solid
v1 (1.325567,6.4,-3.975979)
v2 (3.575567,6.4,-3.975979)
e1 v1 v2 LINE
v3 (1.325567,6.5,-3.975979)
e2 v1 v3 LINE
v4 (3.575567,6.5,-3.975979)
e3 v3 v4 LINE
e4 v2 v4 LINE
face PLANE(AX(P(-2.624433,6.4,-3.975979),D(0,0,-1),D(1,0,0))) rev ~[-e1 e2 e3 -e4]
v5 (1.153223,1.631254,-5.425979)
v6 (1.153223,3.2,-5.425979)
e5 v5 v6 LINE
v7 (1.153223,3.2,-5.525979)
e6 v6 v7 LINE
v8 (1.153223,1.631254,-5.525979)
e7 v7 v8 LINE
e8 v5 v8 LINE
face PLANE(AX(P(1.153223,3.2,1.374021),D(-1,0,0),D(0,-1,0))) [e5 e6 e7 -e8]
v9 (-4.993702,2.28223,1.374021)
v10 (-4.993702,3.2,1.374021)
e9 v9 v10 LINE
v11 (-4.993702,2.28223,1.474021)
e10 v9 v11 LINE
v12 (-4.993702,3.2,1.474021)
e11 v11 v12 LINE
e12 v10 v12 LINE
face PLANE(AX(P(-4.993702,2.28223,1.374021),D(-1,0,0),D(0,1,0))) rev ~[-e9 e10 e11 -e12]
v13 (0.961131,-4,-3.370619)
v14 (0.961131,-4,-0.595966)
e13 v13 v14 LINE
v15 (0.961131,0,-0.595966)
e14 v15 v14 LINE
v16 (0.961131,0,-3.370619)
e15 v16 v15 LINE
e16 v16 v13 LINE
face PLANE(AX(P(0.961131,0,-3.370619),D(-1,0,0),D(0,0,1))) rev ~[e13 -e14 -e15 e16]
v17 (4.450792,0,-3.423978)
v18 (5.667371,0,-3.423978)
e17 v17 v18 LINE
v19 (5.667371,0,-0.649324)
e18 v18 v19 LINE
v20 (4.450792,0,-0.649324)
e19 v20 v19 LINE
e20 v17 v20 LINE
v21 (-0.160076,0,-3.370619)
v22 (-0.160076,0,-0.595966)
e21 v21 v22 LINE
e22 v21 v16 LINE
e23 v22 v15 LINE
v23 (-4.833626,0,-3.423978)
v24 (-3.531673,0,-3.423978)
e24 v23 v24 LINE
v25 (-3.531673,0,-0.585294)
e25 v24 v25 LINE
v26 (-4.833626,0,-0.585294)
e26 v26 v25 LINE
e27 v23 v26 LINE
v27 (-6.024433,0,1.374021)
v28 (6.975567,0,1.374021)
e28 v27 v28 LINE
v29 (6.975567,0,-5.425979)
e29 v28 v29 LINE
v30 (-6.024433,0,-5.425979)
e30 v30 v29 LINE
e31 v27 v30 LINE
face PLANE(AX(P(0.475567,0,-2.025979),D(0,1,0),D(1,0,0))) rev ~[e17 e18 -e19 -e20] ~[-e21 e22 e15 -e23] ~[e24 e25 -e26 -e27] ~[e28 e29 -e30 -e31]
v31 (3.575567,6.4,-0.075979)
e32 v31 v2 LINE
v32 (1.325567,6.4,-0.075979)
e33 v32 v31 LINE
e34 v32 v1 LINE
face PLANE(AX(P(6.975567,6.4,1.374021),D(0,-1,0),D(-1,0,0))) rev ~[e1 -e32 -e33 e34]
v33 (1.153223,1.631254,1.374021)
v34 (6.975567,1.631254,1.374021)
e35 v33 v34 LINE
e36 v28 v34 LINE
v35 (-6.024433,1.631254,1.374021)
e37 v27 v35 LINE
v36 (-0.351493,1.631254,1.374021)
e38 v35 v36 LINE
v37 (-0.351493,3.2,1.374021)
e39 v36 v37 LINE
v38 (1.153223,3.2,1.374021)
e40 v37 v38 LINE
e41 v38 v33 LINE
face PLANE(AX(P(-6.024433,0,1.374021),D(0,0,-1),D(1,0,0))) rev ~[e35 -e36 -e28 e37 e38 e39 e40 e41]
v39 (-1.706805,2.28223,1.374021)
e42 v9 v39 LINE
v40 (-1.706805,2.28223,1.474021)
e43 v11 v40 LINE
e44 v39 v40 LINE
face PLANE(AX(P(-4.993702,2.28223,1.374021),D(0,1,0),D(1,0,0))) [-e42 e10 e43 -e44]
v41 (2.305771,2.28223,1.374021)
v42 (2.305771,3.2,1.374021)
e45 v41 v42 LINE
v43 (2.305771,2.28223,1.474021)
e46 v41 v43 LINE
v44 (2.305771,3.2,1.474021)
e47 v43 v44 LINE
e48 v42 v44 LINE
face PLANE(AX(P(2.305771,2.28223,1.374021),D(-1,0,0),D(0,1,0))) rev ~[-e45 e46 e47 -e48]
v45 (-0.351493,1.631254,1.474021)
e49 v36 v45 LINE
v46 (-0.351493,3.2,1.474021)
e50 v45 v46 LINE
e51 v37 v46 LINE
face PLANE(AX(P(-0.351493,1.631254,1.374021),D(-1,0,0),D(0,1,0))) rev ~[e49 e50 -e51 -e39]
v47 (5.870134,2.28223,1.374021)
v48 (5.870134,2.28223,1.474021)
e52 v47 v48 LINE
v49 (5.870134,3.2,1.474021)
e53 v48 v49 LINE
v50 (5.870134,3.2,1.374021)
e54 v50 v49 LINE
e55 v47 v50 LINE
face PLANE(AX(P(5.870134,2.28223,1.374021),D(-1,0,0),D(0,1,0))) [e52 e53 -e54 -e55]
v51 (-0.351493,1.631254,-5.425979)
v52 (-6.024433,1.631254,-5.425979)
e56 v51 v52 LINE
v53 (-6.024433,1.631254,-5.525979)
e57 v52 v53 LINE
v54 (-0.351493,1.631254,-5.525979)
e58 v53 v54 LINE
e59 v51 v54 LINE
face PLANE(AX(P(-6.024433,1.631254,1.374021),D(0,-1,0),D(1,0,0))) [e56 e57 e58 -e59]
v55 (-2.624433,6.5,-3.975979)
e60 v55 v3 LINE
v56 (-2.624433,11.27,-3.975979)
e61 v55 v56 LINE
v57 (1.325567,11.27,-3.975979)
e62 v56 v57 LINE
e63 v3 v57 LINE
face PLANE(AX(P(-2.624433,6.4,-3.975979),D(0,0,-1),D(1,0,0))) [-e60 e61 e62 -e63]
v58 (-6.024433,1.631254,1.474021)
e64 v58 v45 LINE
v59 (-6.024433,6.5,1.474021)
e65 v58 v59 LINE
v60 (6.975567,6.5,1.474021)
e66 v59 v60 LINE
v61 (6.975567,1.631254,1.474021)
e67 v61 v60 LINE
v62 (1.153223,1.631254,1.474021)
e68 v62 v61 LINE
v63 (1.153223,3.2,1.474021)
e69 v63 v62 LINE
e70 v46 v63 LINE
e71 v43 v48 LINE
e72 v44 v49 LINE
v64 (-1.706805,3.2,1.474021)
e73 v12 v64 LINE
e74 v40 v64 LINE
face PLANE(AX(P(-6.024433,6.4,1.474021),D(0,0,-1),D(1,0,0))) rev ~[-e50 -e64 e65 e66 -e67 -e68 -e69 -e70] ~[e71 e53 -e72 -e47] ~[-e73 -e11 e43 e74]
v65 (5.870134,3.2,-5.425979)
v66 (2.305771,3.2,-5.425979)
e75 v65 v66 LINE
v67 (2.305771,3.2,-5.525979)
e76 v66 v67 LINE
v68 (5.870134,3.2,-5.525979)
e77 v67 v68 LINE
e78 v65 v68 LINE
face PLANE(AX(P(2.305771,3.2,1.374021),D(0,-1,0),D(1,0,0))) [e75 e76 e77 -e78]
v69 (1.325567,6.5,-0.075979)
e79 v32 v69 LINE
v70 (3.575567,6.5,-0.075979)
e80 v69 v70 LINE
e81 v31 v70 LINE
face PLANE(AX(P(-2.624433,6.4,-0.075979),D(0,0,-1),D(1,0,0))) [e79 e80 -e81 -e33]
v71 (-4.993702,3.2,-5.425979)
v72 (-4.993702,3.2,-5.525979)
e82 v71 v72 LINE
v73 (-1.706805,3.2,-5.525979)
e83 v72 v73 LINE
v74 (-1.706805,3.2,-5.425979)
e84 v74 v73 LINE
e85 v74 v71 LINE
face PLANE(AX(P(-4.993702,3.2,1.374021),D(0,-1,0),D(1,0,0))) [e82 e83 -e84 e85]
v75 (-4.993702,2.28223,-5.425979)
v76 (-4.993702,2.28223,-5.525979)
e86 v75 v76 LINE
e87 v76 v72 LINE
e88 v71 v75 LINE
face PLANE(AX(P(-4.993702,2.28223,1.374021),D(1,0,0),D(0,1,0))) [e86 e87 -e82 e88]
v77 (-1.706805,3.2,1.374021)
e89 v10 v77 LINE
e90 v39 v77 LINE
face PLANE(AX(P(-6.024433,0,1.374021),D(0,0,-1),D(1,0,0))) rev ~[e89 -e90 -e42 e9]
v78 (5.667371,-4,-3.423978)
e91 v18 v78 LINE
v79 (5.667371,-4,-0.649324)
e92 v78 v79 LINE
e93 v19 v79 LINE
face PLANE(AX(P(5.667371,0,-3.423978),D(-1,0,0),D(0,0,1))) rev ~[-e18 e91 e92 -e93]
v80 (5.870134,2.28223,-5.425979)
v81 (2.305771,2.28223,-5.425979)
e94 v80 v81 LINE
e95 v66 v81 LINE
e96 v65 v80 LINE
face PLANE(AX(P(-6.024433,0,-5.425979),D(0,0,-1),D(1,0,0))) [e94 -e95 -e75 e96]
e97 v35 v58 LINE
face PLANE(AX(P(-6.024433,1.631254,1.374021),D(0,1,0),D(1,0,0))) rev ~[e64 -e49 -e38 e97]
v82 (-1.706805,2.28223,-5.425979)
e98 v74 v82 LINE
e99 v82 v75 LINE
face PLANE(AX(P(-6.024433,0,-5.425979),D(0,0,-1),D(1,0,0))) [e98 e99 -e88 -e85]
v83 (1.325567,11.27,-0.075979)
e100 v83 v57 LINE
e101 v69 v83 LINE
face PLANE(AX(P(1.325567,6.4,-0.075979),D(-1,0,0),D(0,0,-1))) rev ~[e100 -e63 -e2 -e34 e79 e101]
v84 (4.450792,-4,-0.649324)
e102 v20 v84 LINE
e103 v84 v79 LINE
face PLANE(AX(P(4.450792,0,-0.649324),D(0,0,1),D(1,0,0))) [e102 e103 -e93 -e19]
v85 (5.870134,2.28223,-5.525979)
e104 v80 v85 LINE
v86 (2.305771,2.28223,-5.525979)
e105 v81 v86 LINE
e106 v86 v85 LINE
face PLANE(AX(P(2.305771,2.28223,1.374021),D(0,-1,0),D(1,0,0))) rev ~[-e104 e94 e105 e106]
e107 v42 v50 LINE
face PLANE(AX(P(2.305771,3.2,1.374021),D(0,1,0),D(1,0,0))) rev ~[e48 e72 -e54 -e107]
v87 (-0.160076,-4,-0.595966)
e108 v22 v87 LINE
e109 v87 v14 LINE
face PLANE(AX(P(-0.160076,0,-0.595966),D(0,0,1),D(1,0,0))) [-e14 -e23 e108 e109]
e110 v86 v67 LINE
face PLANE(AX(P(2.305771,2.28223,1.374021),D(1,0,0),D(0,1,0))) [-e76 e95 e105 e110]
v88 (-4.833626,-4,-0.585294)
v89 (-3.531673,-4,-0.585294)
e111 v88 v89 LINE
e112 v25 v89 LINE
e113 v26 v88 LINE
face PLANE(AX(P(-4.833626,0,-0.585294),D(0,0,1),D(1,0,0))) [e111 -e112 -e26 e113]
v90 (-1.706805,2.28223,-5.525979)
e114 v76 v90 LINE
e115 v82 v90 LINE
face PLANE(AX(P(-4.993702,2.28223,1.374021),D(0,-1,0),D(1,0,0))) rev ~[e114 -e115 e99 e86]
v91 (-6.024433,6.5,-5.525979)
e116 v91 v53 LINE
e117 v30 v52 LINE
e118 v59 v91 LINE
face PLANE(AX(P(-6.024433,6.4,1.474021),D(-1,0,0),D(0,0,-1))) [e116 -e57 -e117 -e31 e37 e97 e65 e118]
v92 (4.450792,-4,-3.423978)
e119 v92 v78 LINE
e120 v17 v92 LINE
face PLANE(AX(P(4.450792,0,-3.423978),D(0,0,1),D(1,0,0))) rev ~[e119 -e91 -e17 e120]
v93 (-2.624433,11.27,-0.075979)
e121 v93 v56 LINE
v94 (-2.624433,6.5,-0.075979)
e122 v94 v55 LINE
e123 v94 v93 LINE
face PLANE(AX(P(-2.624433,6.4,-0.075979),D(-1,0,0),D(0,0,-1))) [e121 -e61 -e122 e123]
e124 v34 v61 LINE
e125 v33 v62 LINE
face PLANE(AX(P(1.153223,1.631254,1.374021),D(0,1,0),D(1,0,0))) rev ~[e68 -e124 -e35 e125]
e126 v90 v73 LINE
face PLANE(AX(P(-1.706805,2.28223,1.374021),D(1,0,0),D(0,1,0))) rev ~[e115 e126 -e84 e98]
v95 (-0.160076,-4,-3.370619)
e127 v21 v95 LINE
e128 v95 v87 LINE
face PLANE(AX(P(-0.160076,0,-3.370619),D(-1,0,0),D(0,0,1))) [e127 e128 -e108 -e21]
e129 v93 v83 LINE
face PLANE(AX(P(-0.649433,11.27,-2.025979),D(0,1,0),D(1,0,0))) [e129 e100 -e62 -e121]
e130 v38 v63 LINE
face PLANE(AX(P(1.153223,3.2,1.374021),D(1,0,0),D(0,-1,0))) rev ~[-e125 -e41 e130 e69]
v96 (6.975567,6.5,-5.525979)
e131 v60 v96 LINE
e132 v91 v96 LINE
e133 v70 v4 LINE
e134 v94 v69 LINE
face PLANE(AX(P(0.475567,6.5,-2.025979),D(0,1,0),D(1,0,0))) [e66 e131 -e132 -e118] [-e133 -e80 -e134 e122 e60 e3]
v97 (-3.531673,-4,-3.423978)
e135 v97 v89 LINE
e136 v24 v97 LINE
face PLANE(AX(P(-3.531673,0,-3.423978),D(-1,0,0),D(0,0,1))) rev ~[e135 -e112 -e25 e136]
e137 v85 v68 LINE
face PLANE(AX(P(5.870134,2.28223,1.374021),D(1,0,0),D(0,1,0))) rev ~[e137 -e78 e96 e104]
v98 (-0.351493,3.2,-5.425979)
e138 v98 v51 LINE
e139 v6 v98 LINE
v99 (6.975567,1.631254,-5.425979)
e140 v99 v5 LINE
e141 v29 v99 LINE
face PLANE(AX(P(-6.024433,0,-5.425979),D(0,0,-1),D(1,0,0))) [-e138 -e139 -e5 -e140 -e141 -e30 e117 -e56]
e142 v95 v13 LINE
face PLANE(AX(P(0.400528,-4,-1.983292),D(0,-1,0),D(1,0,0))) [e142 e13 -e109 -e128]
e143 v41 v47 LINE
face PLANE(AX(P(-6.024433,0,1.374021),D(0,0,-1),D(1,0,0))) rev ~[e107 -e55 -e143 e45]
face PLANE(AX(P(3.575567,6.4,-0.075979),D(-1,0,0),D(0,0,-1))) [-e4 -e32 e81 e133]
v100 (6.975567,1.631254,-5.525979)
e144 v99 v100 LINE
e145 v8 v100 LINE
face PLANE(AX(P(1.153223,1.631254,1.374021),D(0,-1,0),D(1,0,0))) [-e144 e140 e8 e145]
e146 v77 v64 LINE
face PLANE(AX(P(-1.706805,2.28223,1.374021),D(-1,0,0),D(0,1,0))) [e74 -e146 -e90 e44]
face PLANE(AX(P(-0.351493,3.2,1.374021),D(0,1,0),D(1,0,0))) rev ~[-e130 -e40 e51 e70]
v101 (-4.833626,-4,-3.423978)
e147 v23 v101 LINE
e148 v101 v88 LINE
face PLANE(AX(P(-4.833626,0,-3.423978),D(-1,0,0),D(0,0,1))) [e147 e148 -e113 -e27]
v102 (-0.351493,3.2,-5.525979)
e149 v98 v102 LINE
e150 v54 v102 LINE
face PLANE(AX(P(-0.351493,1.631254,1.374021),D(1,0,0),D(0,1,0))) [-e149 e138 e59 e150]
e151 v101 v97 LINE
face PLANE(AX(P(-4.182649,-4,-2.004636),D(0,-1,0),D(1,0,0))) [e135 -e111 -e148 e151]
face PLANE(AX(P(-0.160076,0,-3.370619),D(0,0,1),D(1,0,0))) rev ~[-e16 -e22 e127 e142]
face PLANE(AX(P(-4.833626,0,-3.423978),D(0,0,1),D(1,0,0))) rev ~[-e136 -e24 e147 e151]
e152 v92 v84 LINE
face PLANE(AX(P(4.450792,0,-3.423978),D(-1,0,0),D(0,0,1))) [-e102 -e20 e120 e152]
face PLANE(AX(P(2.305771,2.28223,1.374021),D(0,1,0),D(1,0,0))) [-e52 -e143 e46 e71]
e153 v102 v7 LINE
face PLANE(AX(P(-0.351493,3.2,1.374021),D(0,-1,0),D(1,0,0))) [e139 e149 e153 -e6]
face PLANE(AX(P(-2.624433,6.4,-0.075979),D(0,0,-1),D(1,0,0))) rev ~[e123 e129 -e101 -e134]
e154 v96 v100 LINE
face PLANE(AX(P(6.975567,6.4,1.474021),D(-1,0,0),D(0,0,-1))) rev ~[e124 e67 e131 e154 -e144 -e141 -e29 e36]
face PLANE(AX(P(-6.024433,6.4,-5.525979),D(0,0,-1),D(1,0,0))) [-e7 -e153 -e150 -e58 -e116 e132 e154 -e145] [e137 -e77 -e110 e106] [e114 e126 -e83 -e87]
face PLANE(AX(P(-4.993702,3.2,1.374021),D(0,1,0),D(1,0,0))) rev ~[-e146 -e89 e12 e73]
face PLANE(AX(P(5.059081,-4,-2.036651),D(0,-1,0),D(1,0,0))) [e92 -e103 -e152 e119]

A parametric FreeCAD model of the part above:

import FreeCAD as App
import Part
import Sketcher

V = App.Vector


def add_polygon(sketch, points):
    """Adds a closed chain of lines whose ends are joined by coincident constraints."""
    first, n = sketch.GeometryCount, len(points)
    for a, b in zip(points, points[1:] + points[:1]):
        sketch.addGeometry(Part.LineSegment(App.Vector(*a, 0), App.Vector(*b, 0)), False)
    for i in range(n):
        sketch.addConstraint(Sketcher.Constraint("Coincident", first + i, 2, first + (i + 1) % n, 1))

doc = App.newDocument("Part")
params = doc.addObject("Spreadsheet::Sheet", "Params")
for row, (alias, value) in enumerate([
    ("sketch1_width", "13 mm"),
    ("sketch1_height", "6.8 mm"),
    ("pad1_length", "6.4 mm"),
    ("sketch2_width", "13 mm"),
    ("pad2_length", "0.1 mm"),
    ("pad2_length2", "6.9 mm"),
    ("sketch3_width", "13 mm"),
    ("sketch3_height", "7 mm"),
    ("sketch3_width2", "6.2 mm"),
    ("sketch3_height2", "3.9 mm"),
    ("pad3_length", "0.1 mm"),
    ("sketch4_height", "3.9 mm"),
    ("sketch4_width", "3.95 mm"),
    ("pad4_length", "4.87 mm"),
    ("pad5_length", "4 mm"),
], start=1):
    params.set(f"A{row}", alias)
    params.set(f"B{row}", "=" + value)
    params.setAlias(f"B{row}", alias)

body = doc.addObject("PartDesign::Body", "Body")

sketch1 = doc.addObject("Sketcher::SketchObject", "Sketch")
body.addObject(sketch1)
sketch1.AttachmentSupport = (doc.XZ_Plane, [""])
sketch1.MapMode = "FlatFace"
add_polygon(sketch1, [(-6, -5), (-6, 1), (7, 1), (7, -5)])
sketch1.addConstraint(Sketcher.Constraint("Vertical", 0))
sketch1.addConstraint(Sketcher.Constraint("Horizontal", 1))
sketch1.addConstraint(Sketcher.Constraint("Vertical", 2))
sketch1.addConstraint(Sketcher.Constraint("Horizontal", 3))
sketch1.addConstraint(Sketcher.Constraint("DistanceX", 1, 1, 1, 2, 13.0))
sketch1.addConstraint(Sketcher.Constraint("DistanceY", 0, 1, 0, 2, 6.8))
sketch1.addConstraint(Sketcher.Constraint("DistanceY", -1, 1, 0, 2, 1.374021))
sketch1.addConstraint(Sketcher.Constraint("DistanceX", 0, 2, -1, 1, 6.024433))
sketch1.setExpression("Constraints[8]", "Params.sketch1_width")
sketch1.setExpression("Constraints[9]", "Params.sketch1_height")
pad1 = doc.addObject("PartDesign::Pad", "Pad")
body.addObject(pad1)
pad1.Profile = sketch1
pad1.setExpression("Length", "Params.pad1_length")
pad1.Reversed = True

sketch2 = doc.addObject("Sketcher::SketchObject", "Sketch001")
body.addObject(sketch2)
sketch2.AttachmentSupport = (doc.XY_Plane, [""])
sketch2.MapMode = "FlatFace"
sketch2.AttachmentOffset = App.Placement(V(0, 0, 1.374021), App.Rotation())
add_polygon(sketch2, [(7, 6.4), (-6, 6.4), (-6, 1.6), (-0.4, 1.6), (-0.4, 3.2), (1.2, 3.2), (1.2, 1.6), (7, 1.6)])
add_polygon(sketch2, [(-1.7, 2.3), (-5, 2.3), (-5, 3.2), (-1.7, 3.2)])
add_polygon(sketch2, [(5.9, 2.3), (2.3, 2.3), (2.3, 3.2), (5.9, 3.2)])
sketch2.addConstraint(Sketcher.Constraint("Horizontal", 0))
sketch2.addConstraint(Sketcher.Constraint("Vertical", 1))
sketch2.addConstraint(Sketcher.Constraint("Horizontal", 2))
sketch2.addConstraint(Sketcher.Constraint("Vertical", 3))
sketch2.addConstraint(Sketcher.Constraint("Horizontal", 4))
sketch2.addConstraint(Sketcher.Constraint("Vertical", 5))
sketch2.addConstraint(Sketcher.Constraint("Horizontal", 6))
sketch2.addConstraint(Sketcher.Constraint("Vertical", 7))
sketch2.addConstraint(Sketcher.Constraint("Horizontal", 8))
sketch2.addConstraint(Sketcher.Constraint("Vertical", 9))
sketch2.addConstraint(Sketcher.Constraint("Horizontal", 10))
sketch2.addConstraint(Sketcher.Constraint("Vertical", 11))
sketch2.addConstraint(Sketcher.Constraint("Horizontal", 12))
sketch2.addConstraint(Sketcher.Constraint("Vertical", 13))
sketch2.addConstraint(Sketcher.Constraint("Horizontal", 14))
sketch2.addConstraint(Sketcher.Constraint("Vertical", 15))
sketch2.addConstraint(Sketcher.Constraint("Horizontal", 2, 2, 5, 2))
sketch2.addConstraint(Sketcher.Constraint("Horizontal", 4, 2, 9, 2))
sketch2.addConstraint(Sketcher.Constraint("Horizontal", 11, 2, 12, 2))
sketch2.addConstraint(Sketcher.Constraint("Horizontal", 10, 2, 13, 2))
sketch2.addConstraint(Sketcher.Constraint("DistanceX", 0, 2, 0, 1, 13.0))
sketch2.addConstraint(Sketcher.Constraint("DistanceY", -1, 1, 0, 2, 6.4))
sketch2.addConstraint(Sketcher.Constraint("DistanceY", -1, 1, 3, 2, 3.2))
sketch2.addConstraint(Sketcher.Constraint("DistanceX", 2, 1, 2, 2, 5.67294))
sketch2.addConstraint(Sketcher.Constraint("DistanceY", 9, 1, 9, 2, 0.91777))
sketch2.addConstraint(Sketcher.Constraint("DistanceX", 8, 2, -1, 1, 4.993702))
sketch2.addConstraint(Sketcher.Constraint("DistanceX", 4, 1, 4, 2, 1.504716))
sketch2.addConstraint(Sketcher.Constraint("DistanceX", 8, 2, 8, 1, 3.286897))
sketch2.addConstraint(Sketcher.Constraint("DistanceX", 12, 2, 12, 1, 3.564363))
sketch2.addConstraint(Sketcher.Constraint("DistanceY", 1, 2, 1, 1, 4.768746))
sketch2.addConstraint(Sketcher.Constraint("DistanceX", -1, 1, 12, 2, 2.305771))
sketch2.addConstraint(Sketcher.Constraint("DistanceX", 1, 2, 8, 2, 1.030731))
sketch2.setExpression("Constraints[36]", "Params.sketch2_width")
pad2 = doc.addObject("PartDesign::Pad", "Pad001")
body.addObject(pad2)
pad2.Profile = sketch2
pad2.Type = "TwoLengths"
pad2.setExpression("Length", "Params.pad2_length")
pad2.setExpression("Length2", "Params.pad2_length2")

sketch3 = doc.addObject("Sketcher::SketchObject", "Sketch002")
body.addObject(sketch3)
sketch3.AttachmentSupport = (doc.XZ_Plane, [""])
sketch3.MapMode = "FlatFace"
sketch3.AttachmentOffset = App.Placement(V(0, 0, -6.4), App.Rotation())
add_polygon(sketch3, [(-6, -5.5), (-6, 1.5), (7, 1.5), (7, -5.5)])
add_polygon(sketch3, [(3.6, -0.1), (-2.6, -0.1), (-2.6, -4), (3.6, -4)])
sketch3.addConstraint(Sketcher.Constraint("Vertical", 0))
sketch3.addConstraint(Sketcher.Constraint("Horizontal", 1))
sketch3.addConstraint(Sketcher.Constraint("Vertical", 2))
sketch3.addConstraint(Sketcher.Constraint("Horizontal", 3))
sketch3.addConstraint(Sketcher.Constraint("Horizontal", 4))
sketch3.addConstraint(Sketcher.Constraint("Vertical", 5))
sketch3.addConstraint(Sketcher.Constraint("Horizontal", 6))
sketch3.addConstraint(Sketcher.Constraint("Vertical", 7))
sketch3.addConstraint(Sketcher.Constraint("DistanceX", 1, 1, 1, 2, 13.0))
sketch3.addConstraint(Sketcher.Constraint("DistanceY", 0, 1, 0, 2, 7.0))
sketch3.addConstraint(Sketcher.Constraint("DistanceX", 4, 2, 4, 1, 6.2))
sketch3.addConstraint(Sketcher.Constraint("DistanceY", 5, 2, 5, 1, 3.9))
sketch3.addConstraint(Sketcher.Constraint("DistanceX", 0, 2, 4, 2, 3.4))
sketch3.addConstraint(Sketcher.Constraint("DistanceY", 4, 2, 0, 2, 1.55))
sketch3.addConstraint(Sketcher.Constraint("DistanceY", -1, 1, 0, 2, 1.474021))
sketch3.addConstraint(Sketcher.Constraint("DistanceX", 0, 2, -1, 1, 6.024433))
sketch3.setExpression("Constraints[16]", "Params.sketch3_width")
sketch3.setExpression("Constraints[17]", "Params.sketch3_height")
sketch3.setExpression("Constraints[18]", "Params.sketch3_width2")
sketch3.setExpression("Constraints[19]", "Params.sketch3_height2")
pad3 = doc.addObject("PartDesign::Pad", "Pad002")
body.addObject(pad3)
pad3.Profile = sketch3
pad3.setExpression("Length", "Params.pad3_length")
pad3.Reversed = True

sketch4 = doc.addObject("Sketcher::SketchObject", "Sketch003")
body.addObject(sketch4)
sketch4.AttachmentSupport = (doc.XZ_Plane, [""])
sketch4.MapMode = "FlatFace"
sketch4.AttachmentOffset = App.Placement(V(0, 0, -6.4), App.Rotation())
add_polygon(sketch4, [(-2.6, -4), (-2.6, -0.1), (1.3, -0.1), (1.3, -4)])
sketch4.addConstraint(Sketcher.Constraint("Vertical", 0))
sketch4.addConstraint(Sketcher.Constraint("Horizontal", 1))
sketch4.addConstraint(Sketcher.Constraint("Vertical", 2))
sketch4.addConstraint(Sketcher.Constraint("Horizontal", 3))
sketch4.addConstraint(Sketcher.Constraint("DistanceY", 0, 1, 0, 2, 3.9))
sketch4.addConstraint(Sketcher.Constraint("DistanceX", 1, 1, 1, 2, 3.95))
sketch4.addConstraint(Sketcher.Constraint("DistanceY", 0, 2, -1, 1, 0.075979))
sketch4.addConstraint(Sketcher.Constraint("DistanceX", 0, 2, -1, 1, 2.624433))
sketch4.setExpression("Constraints[8]", "Params.sketch4_height")
sketch4.setExpression("Constraints[9]", "Params.sketch4_width")
pad4 = doc.addObject("PartDesign::Pad", "Pad003")
body.addObject(pad4)
pad4.Profile = sketch4
pad4.setExpression("Length", "Params.pad4_length")
pad4.Reversed = True

sketch5 = doc.addObject("Sketcher::SketchObject", "Sketch004")
body.addObject(sketch5)
sketch5.AttachmentSupport = (doc.XZ_Plane, [""])
sketch5.MapMode = "FlatFace"
add_polygon(sketch5, [(-0.2, -0.6), (-0.2, -3.4), (1, -3.4), (1, -0.6)])
add_polygon(sketch5, [(-4.8, -0.6), (-4.8, -3.4), (-3.5, -3.4), (-3.5, -0.6)])
add_polygon(sketch5, [(4.5, -0.6), (4.5, -3.4), (5.7, -3.4), (5.7, -0.6)])
sketch5.addConstraint(Sketcher.Constraint("Vertical", 0))
sketch5.addConstraint(Sketcher.Constraint("Horizontal", 1))
sketch5.addConstraint(Sketcher.Constraint("Vertical", 2))
sketch5.addConstraint(Sketcher.Constraint("Horizontal", 3))
sketch5.addConstraint(Sketcher.Constraint("Vertical", 4))
sketch5.addConstraint(Sketcher.Constraint("Horizontal", 5))
sketch5.addConstraint(Sketcher.Constraint("Vertical", 6))
sketch5.addConstraint(Sketcher.Constraint("Horizontal", 7))
sketch5.addConstraint(Sketcher.Constraint("Vertical", 8))
sketch5.addConstraint(Sketcher.Constraint("Horizontal", 9))
sketch5.addConstraint(Sketcher.Constraint("Vertical", 10))
sketch5.addConstraint(Sketcher.Constraint("Horizontal", 11))
sketch5.addConstraint(Sketcher.Constraint("Horizontal", 5, 2, 8, 2))
sketch5.addConstraint(Sketcher.Constraint("Equal", 2, 8))
sketch5.addConstraint(Sketcher.Constraint("DistanceX", 9, 1, 9, 2, 1.216579))
sketch5.addConstraint(Sketcher.Constraint("DistanceX", 1, 1, 1, 2, 1.121208))
sketch5.addConstraint(Sketcher.Constraint("DistanceX", 5, 1, 5, 2, 1.301953))
sketch5.addConstraint(Sketcher.Constraint("DistanceY", 0, 2, 0, 1, 2.774654))
sketch5.addConstraint(Sketcher.Constraint("DistanceY", 4, 2, 4, 1, 2.838684))
sketch5.addConstraint(Sketcher.Constraint("DistanceY", 0, 2, -1, 1, 3.370619))
sketch5.addConstraint(Sketcher.Constraint("DistanceX", -1, 1, 1, 2, 0.961131))
sketch5.addConstraint(Sketcher.Constraint("DistanceX", -1, 1, 8, 2, 4.450792))
sketch5.addConstraint(Sketcher.Constraint("DistanceX", 4, 2, 0, 2, 4.67355))
sketch5.addConstraint(Sketcher.Constraint("DistanceY", 4, 2, 0, 2, 0.053359))
pad5 = doc.addObject("PartDesign::Pad", "Pad004")
body.addObject(pad5)
pad5.Profile = sketch5
pad5.setExpression("Length", "Params.pad5_length")

doc.recompute()
